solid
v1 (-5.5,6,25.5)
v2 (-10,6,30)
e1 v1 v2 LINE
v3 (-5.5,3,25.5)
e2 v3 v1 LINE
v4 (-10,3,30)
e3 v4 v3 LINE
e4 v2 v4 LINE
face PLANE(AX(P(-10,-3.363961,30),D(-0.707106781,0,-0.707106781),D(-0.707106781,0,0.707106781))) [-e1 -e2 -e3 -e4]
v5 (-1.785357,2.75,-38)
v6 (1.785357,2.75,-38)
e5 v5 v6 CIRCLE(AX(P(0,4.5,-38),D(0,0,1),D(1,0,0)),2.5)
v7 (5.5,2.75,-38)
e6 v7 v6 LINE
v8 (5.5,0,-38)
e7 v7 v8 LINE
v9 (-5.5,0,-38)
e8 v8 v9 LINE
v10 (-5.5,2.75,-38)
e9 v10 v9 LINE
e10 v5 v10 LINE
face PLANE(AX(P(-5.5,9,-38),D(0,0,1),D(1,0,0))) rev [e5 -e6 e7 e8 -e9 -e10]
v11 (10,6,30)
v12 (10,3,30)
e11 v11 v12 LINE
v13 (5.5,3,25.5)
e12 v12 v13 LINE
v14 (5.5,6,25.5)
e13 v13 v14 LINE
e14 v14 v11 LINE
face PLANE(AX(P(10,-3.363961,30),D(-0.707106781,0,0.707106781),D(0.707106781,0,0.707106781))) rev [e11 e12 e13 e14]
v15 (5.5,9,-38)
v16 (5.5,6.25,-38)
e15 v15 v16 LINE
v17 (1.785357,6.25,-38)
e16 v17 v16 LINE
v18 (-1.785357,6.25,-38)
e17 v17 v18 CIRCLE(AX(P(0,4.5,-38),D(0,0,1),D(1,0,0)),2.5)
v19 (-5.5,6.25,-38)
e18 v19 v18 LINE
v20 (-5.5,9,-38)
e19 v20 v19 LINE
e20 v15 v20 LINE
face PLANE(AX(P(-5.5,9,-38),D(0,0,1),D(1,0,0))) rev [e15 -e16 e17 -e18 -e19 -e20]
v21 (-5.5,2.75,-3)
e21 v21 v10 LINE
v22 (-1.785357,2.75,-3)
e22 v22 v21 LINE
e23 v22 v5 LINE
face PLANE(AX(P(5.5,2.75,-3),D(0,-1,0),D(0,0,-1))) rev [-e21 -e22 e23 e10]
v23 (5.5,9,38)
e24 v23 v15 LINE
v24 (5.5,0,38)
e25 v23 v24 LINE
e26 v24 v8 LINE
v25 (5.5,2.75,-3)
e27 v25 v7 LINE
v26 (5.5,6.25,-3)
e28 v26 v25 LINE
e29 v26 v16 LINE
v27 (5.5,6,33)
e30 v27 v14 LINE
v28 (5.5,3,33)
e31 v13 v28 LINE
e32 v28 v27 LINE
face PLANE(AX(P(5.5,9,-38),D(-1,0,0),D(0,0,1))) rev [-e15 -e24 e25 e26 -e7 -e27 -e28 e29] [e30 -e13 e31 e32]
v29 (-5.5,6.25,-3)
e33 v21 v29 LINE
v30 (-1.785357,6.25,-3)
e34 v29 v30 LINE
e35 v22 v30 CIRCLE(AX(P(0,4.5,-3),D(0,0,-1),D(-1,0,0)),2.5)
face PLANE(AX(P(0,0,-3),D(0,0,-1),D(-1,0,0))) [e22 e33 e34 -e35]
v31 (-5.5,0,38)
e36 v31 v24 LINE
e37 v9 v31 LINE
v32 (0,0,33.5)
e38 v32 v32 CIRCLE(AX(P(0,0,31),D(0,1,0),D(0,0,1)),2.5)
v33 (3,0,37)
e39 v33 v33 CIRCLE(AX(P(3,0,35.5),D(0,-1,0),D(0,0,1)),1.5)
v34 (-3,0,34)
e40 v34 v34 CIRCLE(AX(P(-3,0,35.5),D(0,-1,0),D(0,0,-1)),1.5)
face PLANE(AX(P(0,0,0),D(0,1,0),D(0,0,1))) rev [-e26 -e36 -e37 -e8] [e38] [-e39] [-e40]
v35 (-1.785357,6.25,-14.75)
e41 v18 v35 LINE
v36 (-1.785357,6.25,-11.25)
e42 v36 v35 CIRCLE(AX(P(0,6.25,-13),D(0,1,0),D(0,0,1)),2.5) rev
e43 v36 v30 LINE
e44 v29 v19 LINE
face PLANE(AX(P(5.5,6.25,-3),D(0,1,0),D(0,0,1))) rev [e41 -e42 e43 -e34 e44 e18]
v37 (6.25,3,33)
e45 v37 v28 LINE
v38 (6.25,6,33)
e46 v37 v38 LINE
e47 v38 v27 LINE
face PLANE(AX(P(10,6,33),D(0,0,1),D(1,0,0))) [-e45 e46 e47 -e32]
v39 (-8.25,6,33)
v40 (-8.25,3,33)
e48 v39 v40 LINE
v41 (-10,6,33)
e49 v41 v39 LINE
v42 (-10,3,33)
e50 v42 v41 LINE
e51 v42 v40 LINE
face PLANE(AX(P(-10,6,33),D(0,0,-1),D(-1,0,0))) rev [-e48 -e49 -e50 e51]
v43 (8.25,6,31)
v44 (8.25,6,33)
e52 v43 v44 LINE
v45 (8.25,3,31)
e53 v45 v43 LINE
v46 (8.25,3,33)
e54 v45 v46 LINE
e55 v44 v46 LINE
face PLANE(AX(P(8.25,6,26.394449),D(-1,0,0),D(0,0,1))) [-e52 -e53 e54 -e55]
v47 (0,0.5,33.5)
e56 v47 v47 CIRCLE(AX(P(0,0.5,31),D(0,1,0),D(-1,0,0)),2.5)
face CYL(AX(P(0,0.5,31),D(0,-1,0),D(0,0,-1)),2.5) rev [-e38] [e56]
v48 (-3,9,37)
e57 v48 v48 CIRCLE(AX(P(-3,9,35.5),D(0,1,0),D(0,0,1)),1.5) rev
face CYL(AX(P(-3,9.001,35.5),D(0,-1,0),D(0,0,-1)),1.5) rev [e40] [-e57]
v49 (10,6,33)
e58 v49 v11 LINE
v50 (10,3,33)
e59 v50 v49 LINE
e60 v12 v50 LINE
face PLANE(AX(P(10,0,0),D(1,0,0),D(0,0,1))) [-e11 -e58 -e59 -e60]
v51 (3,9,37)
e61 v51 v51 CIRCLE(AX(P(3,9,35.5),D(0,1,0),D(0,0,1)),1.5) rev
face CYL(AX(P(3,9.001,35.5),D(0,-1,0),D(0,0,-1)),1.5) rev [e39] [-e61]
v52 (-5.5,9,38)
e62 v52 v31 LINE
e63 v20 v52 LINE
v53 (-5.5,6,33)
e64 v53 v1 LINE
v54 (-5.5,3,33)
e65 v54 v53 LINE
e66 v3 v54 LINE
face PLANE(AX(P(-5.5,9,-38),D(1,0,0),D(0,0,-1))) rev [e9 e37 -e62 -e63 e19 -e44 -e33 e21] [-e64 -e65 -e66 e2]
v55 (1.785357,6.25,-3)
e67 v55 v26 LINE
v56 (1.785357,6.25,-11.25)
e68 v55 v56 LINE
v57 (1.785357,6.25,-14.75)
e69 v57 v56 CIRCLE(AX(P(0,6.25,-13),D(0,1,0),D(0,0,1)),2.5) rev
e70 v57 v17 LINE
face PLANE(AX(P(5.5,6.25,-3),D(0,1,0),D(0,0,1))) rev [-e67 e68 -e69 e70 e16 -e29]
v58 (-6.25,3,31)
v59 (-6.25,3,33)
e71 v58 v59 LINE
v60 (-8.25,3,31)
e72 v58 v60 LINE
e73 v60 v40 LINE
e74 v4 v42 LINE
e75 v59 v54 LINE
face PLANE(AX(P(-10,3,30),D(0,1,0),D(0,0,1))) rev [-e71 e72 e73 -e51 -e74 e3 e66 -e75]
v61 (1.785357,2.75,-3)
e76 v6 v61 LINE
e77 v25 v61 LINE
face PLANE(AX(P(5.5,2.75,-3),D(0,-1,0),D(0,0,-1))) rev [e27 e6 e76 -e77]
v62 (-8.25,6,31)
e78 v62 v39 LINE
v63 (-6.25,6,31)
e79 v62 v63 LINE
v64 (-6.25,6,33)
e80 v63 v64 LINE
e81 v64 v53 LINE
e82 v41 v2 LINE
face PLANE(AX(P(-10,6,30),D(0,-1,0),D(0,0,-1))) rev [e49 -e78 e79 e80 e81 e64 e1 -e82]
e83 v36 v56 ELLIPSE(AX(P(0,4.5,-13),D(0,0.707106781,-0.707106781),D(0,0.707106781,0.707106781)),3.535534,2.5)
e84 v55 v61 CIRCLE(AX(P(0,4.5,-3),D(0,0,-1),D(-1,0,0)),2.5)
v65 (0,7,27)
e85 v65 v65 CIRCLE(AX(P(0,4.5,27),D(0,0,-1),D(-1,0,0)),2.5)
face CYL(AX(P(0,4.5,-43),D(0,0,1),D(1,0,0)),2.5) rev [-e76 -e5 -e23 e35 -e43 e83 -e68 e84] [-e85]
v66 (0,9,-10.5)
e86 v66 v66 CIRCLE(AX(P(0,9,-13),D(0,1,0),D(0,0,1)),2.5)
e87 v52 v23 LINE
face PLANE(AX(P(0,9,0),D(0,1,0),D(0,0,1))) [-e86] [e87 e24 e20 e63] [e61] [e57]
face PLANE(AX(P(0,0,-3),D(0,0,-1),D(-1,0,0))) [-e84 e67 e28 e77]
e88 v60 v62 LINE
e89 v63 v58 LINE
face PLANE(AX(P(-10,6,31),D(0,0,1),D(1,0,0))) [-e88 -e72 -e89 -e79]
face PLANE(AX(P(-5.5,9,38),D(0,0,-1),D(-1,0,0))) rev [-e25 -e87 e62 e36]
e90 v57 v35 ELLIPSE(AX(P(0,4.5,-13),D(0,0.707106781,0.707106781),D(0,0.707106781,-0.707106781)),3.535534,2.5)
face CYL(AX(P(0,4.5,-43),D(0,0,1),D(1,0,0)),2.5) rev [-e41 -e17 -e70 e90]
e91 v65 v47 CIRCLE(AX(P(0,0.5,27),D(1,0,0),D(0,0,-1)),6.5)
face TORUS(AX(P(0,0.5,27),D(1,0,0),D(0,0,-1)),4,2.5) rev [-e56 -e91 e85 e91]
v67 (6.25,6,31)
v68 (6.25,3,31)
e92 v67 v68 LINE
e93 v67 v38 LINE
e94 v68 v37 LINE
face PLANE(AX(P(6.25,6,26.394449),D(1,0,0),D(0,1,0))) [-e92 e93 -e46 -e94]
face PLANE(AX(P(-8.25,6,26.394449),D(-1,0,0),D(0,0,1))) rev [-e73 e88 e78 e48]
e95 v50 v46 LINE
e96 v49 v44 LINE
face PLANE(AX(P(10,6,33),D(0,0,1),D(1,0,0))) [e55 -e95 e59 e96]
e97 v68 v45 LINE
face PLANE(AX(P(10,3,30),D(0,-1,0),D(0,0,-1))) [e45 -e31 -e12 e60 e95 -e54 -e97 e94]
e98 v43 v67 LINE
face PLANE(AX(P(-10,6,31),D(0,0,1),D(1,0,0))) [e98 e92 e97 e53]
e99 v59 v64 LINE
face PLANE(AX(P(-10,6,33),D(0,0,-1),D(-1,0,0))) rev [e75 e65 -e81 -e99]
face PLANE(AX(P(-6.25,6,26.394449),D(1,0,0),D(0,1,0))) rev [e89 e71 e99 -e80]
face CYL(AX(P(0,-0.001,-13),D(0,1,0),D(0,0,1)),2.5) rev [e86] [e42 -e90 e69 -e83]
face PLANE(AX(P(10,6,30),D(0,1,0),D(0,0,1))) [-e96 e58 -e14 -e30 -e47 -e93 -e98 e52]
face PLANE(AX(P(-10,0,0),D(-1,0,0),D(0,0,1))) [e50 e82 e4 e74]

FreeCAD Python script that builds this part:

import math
import FreeCAD as App
import Part
import Sketcher

V = App.Vector
Q = App.Units.Quantity

doc = App.newDocument("Part")
body = doc.addObject("PartDesign::Body", "Body")

# Sketch on XZ plane
sketch1 = doc.addObject("Sketcher::SketchObject", "Sketch")
body.addObject(sketch1)
sketch1.AttachmentSupport = (doc.XZ_Plane, [""])
sketch1.MapMode = "FlatFace"
sketch1.addGeometry([
    Part.LineSegment(V(-6, -38, 0), V(-6, 38, 0)),
    Part.LineSegment(V(-6, 38, 0), V(6, 38, 0)),
    Part.LineSegment(V(6, 38, 0), V(6, -38, 0)),
    Part.LineSegment(V(6, -38, 0), V(-6, -38, 0)),
], False)
sketch1.addConstraint([
    Sketcher.Constraint("Coincident", 0, 2, 1, 1),
    Sketcher.Constraint("Coincident", 1, 2, 2, 1),
    Sketcher.Constraint("Coincident", 2, 2, 3, 1),
    Sketcher.Constraint("Coincident", 3, 2, 0, 1),
    Sketcher.Constraint("Vertical", 0),
    Sketcher.Constraint("Horizontal", 1),
    Sketcher.Constraint("Vertical", 2),
    Sketcher.Constraint("Horizontal", 3),
    Sketcher.Constraint("Symmetric", 0, 2, 2, 2, -1, 1),
    Sketcher.Constraint("DistanceX", 1, 1, 1, 2, Q("11 mm")),
    Sketcher.Constraint("DistanceY", 0, 1, 0, 2, Q("76 mm")),
])
pad1 = doc.addObject("PartDesign::Pad", "Pad")
body.addObject(pad1)
pad1.Profile = sketch1
pad1.Length = 9
pad1.Reversed = True

# Sketch on XY plane
sketch2 = doc.addObject("Sketcher::SketchObject", "Sketch001")
body.addObject(sketch2)
sketch2.AttachmentSupport = (doc.XY_Plane, [""])
sketch2.MapMode = "FlatFace"
sketch2.AttachmentOffset = App.Placement(V(0, 0, -38), App.Rotation())
sketch2.addGeometry(Part.Circle(V(0, 4.5, 0), V(0, 0, 1), 2.5), False)
sketch2.addConstraint([
    Sketcher.Constraint("PointOnObject", 0, 3, -2),
    Sketcher.Constraint("Diameter", 0, Q("5 mm")),
    Sketcher.Constraint("DistanceY", -1, 1, 0, 3, Q("4.5 mm")),
])

# Sketch on YZ plane
sketch3 = doc.addObject("Sketcher::SketchObject", "Sketch002")
body.addObject(sketch3)
sketch3.AttachmentSupport = (doc.YZ_Plane, [""])
sketch3.MapMode = "FlatFace"
sketch3.addGeometry([
    Part.LineSegment(V(4.5, -38, 0), V(4.5, 27, 0)),
    Part.ArcOfCircle(Part.Circle(V(0.5, 27, 0), V(0, 0, 1), 4), math.radians(0), math.radians(90)),
    Part.LineSegment(V(0.5, 31, 0), V(0, 31, 0)),
], False)
sketch3.addConstraint([
    Sketcher.Constraint("Tangent", 0, 2, 1, 1),
    Sketcher.Constraint("Tangent", 1, 2, 2, 1),
    Sketcher.Constraint("Vertical", 0),
    Sketcher.Constraint("Horizontal", 2),
    Sketcher.Constraint("PointOnObject", 2, 2, -2),
    Sketcher.Constraint("Radius", 1, Q("4 mm")),
    Sketcher.Constraint("DistanceY", 0, 1, 0, 2, Q("65 mm")),
    Sketcher.Constraint("DistanceX", 2, 2, 2, 1, Q("0.5 mm")),
    Sketcher.Constraint("DistanceY", -1, 1, 1, 3, Q("27 mm")),
])
doc.recompute()

subtractivepipe = doc.addObject("PartDesign::SubtractivePipe", "SubtractivePipe")
body.addObject(subtractivepipe)
subtractivepipe.Profile = sketch2
subtractivepipe.Spine = (sketch3, ["Edge1", "Edge2", "Edge3"])

# Sketch on YZ plane
sketch4 = doc.addObject("Sketcher::SketchObject", "Sketch003")
body.addObject(sketch4)
sketch4.AttachmentSupport = (doc.YZ_Plane, [""])
sketch4.MapMode = "FlatFace"
sketch4.AttachmentOffset = App.Placement(V(0, 0, -5.5), App.Rotation())
sketch4.addGeometry([
    Part.LineSegment(V(6, 30, 0), V(3, 30, 0)),
    Part.LineSegment(V(3, 30, 0), V(3, 33, 0)),
    Part.LineSegment(V(3, 33, 0), V(6, 33, 0)),
    Part.LineSegment(V(6, 33, 0), V(6, 30, 0)),
], False)
sketch4.addConstraint([
    Sketcher.Constraint("Coincident", 0, 2, 1, 1),
    Sketcher.Constraint("Coincident", 1, 2, 2, 1),
    Sketcher.Constraint("Coincident", 2, 2, 3, 1),
    Sketcher.Constraint("Coincident", 3, 2, 0, 1),
    Sketcher.Constraint("Horizontal", 0),
    Sketcher.Constraint("Vertical", 1),
    Sketcher.Constraint("Horizontal", 2),
    Sketcher.Constraint("Vertical", 3),
    Sketcher.Constraint("Equal", 2, 1),
    Sketcher.Constraint("DistanceX", 0, 2, 0, 1, Q("3 mm")),
    Sketcher.Constraint("DistanceX", -1, 1, 0, 2, Q("3 mm")),
    Sketcher.Constraint("DistanceY", -1, 1, 0, 2, Q("30 mm")),
])
pad2 = doc.addObject("PartDesign::Pad", "Pad001")
body.addObject(pad2)
pad2.Profile = sketch4
pad2.Length = 4.5
pad2.Reversed = True
doc.recompute()

mirrored = doc.addObject("PartDesign::Mirrored", "Mirrored")
body.addObject(mirrored)
mirrored.Originals = [pad2]
mirrored.MirrorPlane = (doc.YZ_Plane, [""])
body.Tip = mirrored

# Sketch on XY plane
sketch5 = doc.addObject("Sketcher::SketchObject", "Sketch004")
body.addObject(sketch5)
sketch5.AttachmentSupport = (doc.XY_Plane, [""])
sketch5.MapMode = "FlatFace"
sketch5.AttachmentOffset = App.Placement(V(0, 0, 33), App.Rotation())
sketch5.addGeometry([
    Part.LineSegment(V(-8.2, 6, 0), V(-8.2, 3, 0)),
    Part.LineSegment(V(-8.2, 3, 0), V(-6.2, 3, 0)),
    Part.LineSegment(V(-6.2, 3, 0), V(-6.2, 6, 0)),
    Part.LineSegment(V(-6.2, 6, 0), V(-8.2, 6, 0)),
], False)
sketch5.addConstraint([
    Sketcher.Constraint("Coincident", 0, 2, 1, 1),
    Sketcher.Constraint("Coincident", 1, 2, 2, 1),
    Sketcher.Constraint("Coincident", 2, 2, 3, 1),
    Sketcher.Constraint("Coincident", 3, 2, 0, 1),
    Sketcher.Constraint("Vertical", 0),
    Sketcher.Constraint("Horizontal", 1),
    Sketcher.Constraint("Vertical", 2),
    Sketcher.Constraint("Horizontal", 3),
    Sketcher.Constraint("DistanceX", 1, 1, 1, 2, Q("2 mm")),
    Sketcher.Constraint("DistanceY", 0, 2, 0, 1, Q("3 mm")),
    Sketcher.Constraint("DistanceY", -1, 1, 0, 2, Q("3 mm")),
    Sketcher.Constraint("DistanceX", 0, 2, -1, 1, Q("8.25 mm")),
])
pocket1 = doc.addObject("PartDesign::Pocket", "Pocket")
body.addObject(pocket1)
pocket1.Profile = sketch5
pocket1.Length = 2
doc.recompute()

mirrored2 = doc.addObject("PartDesign::Mirrored", "Mirrored001")
body.addObject(mirrored2)
mirrored2.Originals = [pocket1]
mirrored2.MirrorPlane = (doc.YZ_Plane, [""])
body.Tip = mirrored2

# Sketch on XZ plane
sketch6 = doc.addObject("Sketcher::SketchObject", "Sketch005")
body.addObject(sketch6)
sketch6.AttachmentSupport = (doc.XZ_Plane, [""])
sketch6.MapMode = "FlatFace"
sketch6.AttachmentOffset = App.Placement(V(0, 0, -6), App.Rotation())
sketch6.addGeometry([
    Part.LineSegment(V(-5.5, 25.5, 0), V(-10, 30, 0)),
    Part.LineSegment(V(-10, 30, 0), V(-5.5, 30, 0)),
    Part.LineSegment(V(-5.5, 30, 0), V(-5.5, 25.5, 0)),
], False)
sketch6.addConstraint([
    Sketcher.Constraint("Coincident", 0, 2, 1, 1),
    Sketcher.Constraint("Coincident", 1, 2, 2, 1),
    Sketcher.Constraint("Coincident", 2, 2, 0, 1),
    Sketcher.Constraint("Horizontal", 1),
    Sketcher.Constraint("Vertical", 2),
    Sketcher.Constraint("Equal", 1, 2),
    Sketcher.Constraint("DistanceX", 1, 1, 1, 2, Q("4.5 mm")),
    Sketcher.Constraint("DistanceX", 0, 2, -1, 1, Q("10 mm")),
    Sketcher.Constraint("DistanceY", -1, 1, 0, 2, Q("30 mm")),
])
pad3 = doc.addObject("PartDesign::Pad", "Pad002")
body.addObject(pad3)
pad3.Profile = sketch6
pad3.Length = 3
doc.recompute()

mirrored3 = doc.addObject("PartDesign::Mirrored", "Mirrored002")
body.addObject(mirrored3)
mirrored3.Originals = [pad3]
mirrored3.MirrorPlane = (doc.YZ_Plane, [""])
body.Tip = mirrored3

# Sketch on XY plane
sketch7 = doc.addObject("Sketcher::SketchObject", "Sketch006")
body.addObject(sketch7)
sketch7.AttachmentSupport = (doc.XY_Plane, [""])
sketch7.MapMode = "FlatFace"
sketch7.AttachmentOffset = App.Placement(V(0, 0, -38), App.Rotation())
sketch7.addGeometry([
    Part.LineSegment(V(5.5, 6.2, 0), V(5.5, 2.8, 0)),
    Part.LineSegment(V(5.5, 2.8, 0), V(-5.5, 2.8, 0)),
    Part.LineSegment(V(-5.5, 2.8, 0), V(-5.5, 6.2, 0)),
    Part.LineSegment(V(-5.5, 6.2, 0), V(5.5, 6.2, 0)),
], False)
sketch7.addConstraint([
    Sketcher.Constraint("Coincident", 0, 2, 1, 1),
    Sketcher.Constraint("Coincident", 1, 2, 2, 1),
    Sketcher.Constraint("Coincident", 2, 2, 3, 1),
    Sketcher.Constraint("Coincident", 3, 2, 0, 1),
    Sketcher.Constraint("Vertical", 0),
    Sketcher.Constraint("Horizontal", 1),
    Sketcher.Constraint("Vertical", 2),
    Sketcher.Constraint("Horizontal", 3),
    Sketcher.Constraint("DistanceX", 1, 2, 1, 1, Q("11 mm")),
    Sketcher.Constraint("DistanceY", 0, 2, 0, 1, Q("3.5 mm")),
    Sketcher.Constraint("DistanceX", -1, 1, 0, 2, Q("5.5 mm")),
    Sketcher.Constraint("DistanceY", -1, 1, 0, 2, Q("2.75 mm")),
])
pocket2 = doc.addObject("PartDesign::Pocket", "Pocket001")
body.addObject(pocket2)
pocket2.Profile = sketch7
pocket2.Length = 35
pocket2.Reversed = True

# Sketch on XZ plane
sketch8 = doc.addObject("Sketcher::SketchObject", "Sketch007")
body.addObject(sketch8)
sketch8.AttachmentSupport = (doc.XZ_Plane, [""])
sketch8.MapMode = "FlatFace"
sketch8.AttachmentOffset = App.Placement(V(0, 0, -9), App.Rotation())
sketch8.addGeometry(Part.Circle(V(0, -13, 0), V(0, 0, 1), 2.5), False)
sketch8.addConstraint([
    Sketcher.Constraint("PointOnObject", 0, 3, -2),
    Sketcher.Constraint("Diameter", 0, Q("5 mm")),
    Sketcher.Constraint("DistanceY", 0, 3, -1, 1, Q("13 mm")),
])
pocket3 = doc.addObject("PartDesign::Pocket", "Pocket002")
body.addObject(pocket3)
pocket3.Profile = sketch8
pocket3.Length = 2.75
pocket3.Reversed = True

# Sketch on XZ plane
sketch9 = doc.addObject("Sketcher::SketchObject", "Sketch008")
body.addObject(sketch9)
sketch9.AttachmentSupport = (doc.XZ_Plane, [""])
sketch9.MapMode = "FlatFace"
sketch9.addGeometry(Part.Circle(V(-3, 35.5, 0), V(0, 0, 1), 1.5), False)
sketch9.addConstraint([
    Sketcher.Constraint("Diameter", 0, Q("3 mm")),
    Sketcher.Constraint("DistanceX", 0, 3, -1, 1, Q("3 mm")),
    Sketcher.Constraint("DistanceY", -1, 1, 0, 3, Q("35.5 mm")),
])
pocket4 = doc.addObject("PartDesign::Pocket", "Pocket003")
body.addObject(pocket4)
pocket4.Profile = sketch9
pocket4.Type = "UpToFirst"

# Sketch on XZ plane
sketch10 = doc.addObject("Sketcher::SketchObject", "Sketch009")
body.addObject(sketch10)
sketch10.AttachmentSupport = (doc.XZ_Plane, [""])
sketch10.MapMode = "FlatFace"
sketch10.addGeometry(Part.Circle(V(3, 35.5, 0), V(0, 0, 1), 1.5), False)
sketch10.addConstraint([
    Sketcher.Constraint("Diameter", 0, Q("3 mm")),
    Sketcher.Constraint("DistanceX", -1, 1, 0, 3, Q("3 mm")),
    Sketcher.Constraint("DistanceY", -1, 1, 0, 3, Q("35.5 mm")),
])
pocket5 = doc.addObject("PartDesign::Pocket", "Pocket004")
body.addObject(pocket5)
pocket5.Profile = sketch10
pocket5.Type = "UpToFirst"

doc.recompute()
